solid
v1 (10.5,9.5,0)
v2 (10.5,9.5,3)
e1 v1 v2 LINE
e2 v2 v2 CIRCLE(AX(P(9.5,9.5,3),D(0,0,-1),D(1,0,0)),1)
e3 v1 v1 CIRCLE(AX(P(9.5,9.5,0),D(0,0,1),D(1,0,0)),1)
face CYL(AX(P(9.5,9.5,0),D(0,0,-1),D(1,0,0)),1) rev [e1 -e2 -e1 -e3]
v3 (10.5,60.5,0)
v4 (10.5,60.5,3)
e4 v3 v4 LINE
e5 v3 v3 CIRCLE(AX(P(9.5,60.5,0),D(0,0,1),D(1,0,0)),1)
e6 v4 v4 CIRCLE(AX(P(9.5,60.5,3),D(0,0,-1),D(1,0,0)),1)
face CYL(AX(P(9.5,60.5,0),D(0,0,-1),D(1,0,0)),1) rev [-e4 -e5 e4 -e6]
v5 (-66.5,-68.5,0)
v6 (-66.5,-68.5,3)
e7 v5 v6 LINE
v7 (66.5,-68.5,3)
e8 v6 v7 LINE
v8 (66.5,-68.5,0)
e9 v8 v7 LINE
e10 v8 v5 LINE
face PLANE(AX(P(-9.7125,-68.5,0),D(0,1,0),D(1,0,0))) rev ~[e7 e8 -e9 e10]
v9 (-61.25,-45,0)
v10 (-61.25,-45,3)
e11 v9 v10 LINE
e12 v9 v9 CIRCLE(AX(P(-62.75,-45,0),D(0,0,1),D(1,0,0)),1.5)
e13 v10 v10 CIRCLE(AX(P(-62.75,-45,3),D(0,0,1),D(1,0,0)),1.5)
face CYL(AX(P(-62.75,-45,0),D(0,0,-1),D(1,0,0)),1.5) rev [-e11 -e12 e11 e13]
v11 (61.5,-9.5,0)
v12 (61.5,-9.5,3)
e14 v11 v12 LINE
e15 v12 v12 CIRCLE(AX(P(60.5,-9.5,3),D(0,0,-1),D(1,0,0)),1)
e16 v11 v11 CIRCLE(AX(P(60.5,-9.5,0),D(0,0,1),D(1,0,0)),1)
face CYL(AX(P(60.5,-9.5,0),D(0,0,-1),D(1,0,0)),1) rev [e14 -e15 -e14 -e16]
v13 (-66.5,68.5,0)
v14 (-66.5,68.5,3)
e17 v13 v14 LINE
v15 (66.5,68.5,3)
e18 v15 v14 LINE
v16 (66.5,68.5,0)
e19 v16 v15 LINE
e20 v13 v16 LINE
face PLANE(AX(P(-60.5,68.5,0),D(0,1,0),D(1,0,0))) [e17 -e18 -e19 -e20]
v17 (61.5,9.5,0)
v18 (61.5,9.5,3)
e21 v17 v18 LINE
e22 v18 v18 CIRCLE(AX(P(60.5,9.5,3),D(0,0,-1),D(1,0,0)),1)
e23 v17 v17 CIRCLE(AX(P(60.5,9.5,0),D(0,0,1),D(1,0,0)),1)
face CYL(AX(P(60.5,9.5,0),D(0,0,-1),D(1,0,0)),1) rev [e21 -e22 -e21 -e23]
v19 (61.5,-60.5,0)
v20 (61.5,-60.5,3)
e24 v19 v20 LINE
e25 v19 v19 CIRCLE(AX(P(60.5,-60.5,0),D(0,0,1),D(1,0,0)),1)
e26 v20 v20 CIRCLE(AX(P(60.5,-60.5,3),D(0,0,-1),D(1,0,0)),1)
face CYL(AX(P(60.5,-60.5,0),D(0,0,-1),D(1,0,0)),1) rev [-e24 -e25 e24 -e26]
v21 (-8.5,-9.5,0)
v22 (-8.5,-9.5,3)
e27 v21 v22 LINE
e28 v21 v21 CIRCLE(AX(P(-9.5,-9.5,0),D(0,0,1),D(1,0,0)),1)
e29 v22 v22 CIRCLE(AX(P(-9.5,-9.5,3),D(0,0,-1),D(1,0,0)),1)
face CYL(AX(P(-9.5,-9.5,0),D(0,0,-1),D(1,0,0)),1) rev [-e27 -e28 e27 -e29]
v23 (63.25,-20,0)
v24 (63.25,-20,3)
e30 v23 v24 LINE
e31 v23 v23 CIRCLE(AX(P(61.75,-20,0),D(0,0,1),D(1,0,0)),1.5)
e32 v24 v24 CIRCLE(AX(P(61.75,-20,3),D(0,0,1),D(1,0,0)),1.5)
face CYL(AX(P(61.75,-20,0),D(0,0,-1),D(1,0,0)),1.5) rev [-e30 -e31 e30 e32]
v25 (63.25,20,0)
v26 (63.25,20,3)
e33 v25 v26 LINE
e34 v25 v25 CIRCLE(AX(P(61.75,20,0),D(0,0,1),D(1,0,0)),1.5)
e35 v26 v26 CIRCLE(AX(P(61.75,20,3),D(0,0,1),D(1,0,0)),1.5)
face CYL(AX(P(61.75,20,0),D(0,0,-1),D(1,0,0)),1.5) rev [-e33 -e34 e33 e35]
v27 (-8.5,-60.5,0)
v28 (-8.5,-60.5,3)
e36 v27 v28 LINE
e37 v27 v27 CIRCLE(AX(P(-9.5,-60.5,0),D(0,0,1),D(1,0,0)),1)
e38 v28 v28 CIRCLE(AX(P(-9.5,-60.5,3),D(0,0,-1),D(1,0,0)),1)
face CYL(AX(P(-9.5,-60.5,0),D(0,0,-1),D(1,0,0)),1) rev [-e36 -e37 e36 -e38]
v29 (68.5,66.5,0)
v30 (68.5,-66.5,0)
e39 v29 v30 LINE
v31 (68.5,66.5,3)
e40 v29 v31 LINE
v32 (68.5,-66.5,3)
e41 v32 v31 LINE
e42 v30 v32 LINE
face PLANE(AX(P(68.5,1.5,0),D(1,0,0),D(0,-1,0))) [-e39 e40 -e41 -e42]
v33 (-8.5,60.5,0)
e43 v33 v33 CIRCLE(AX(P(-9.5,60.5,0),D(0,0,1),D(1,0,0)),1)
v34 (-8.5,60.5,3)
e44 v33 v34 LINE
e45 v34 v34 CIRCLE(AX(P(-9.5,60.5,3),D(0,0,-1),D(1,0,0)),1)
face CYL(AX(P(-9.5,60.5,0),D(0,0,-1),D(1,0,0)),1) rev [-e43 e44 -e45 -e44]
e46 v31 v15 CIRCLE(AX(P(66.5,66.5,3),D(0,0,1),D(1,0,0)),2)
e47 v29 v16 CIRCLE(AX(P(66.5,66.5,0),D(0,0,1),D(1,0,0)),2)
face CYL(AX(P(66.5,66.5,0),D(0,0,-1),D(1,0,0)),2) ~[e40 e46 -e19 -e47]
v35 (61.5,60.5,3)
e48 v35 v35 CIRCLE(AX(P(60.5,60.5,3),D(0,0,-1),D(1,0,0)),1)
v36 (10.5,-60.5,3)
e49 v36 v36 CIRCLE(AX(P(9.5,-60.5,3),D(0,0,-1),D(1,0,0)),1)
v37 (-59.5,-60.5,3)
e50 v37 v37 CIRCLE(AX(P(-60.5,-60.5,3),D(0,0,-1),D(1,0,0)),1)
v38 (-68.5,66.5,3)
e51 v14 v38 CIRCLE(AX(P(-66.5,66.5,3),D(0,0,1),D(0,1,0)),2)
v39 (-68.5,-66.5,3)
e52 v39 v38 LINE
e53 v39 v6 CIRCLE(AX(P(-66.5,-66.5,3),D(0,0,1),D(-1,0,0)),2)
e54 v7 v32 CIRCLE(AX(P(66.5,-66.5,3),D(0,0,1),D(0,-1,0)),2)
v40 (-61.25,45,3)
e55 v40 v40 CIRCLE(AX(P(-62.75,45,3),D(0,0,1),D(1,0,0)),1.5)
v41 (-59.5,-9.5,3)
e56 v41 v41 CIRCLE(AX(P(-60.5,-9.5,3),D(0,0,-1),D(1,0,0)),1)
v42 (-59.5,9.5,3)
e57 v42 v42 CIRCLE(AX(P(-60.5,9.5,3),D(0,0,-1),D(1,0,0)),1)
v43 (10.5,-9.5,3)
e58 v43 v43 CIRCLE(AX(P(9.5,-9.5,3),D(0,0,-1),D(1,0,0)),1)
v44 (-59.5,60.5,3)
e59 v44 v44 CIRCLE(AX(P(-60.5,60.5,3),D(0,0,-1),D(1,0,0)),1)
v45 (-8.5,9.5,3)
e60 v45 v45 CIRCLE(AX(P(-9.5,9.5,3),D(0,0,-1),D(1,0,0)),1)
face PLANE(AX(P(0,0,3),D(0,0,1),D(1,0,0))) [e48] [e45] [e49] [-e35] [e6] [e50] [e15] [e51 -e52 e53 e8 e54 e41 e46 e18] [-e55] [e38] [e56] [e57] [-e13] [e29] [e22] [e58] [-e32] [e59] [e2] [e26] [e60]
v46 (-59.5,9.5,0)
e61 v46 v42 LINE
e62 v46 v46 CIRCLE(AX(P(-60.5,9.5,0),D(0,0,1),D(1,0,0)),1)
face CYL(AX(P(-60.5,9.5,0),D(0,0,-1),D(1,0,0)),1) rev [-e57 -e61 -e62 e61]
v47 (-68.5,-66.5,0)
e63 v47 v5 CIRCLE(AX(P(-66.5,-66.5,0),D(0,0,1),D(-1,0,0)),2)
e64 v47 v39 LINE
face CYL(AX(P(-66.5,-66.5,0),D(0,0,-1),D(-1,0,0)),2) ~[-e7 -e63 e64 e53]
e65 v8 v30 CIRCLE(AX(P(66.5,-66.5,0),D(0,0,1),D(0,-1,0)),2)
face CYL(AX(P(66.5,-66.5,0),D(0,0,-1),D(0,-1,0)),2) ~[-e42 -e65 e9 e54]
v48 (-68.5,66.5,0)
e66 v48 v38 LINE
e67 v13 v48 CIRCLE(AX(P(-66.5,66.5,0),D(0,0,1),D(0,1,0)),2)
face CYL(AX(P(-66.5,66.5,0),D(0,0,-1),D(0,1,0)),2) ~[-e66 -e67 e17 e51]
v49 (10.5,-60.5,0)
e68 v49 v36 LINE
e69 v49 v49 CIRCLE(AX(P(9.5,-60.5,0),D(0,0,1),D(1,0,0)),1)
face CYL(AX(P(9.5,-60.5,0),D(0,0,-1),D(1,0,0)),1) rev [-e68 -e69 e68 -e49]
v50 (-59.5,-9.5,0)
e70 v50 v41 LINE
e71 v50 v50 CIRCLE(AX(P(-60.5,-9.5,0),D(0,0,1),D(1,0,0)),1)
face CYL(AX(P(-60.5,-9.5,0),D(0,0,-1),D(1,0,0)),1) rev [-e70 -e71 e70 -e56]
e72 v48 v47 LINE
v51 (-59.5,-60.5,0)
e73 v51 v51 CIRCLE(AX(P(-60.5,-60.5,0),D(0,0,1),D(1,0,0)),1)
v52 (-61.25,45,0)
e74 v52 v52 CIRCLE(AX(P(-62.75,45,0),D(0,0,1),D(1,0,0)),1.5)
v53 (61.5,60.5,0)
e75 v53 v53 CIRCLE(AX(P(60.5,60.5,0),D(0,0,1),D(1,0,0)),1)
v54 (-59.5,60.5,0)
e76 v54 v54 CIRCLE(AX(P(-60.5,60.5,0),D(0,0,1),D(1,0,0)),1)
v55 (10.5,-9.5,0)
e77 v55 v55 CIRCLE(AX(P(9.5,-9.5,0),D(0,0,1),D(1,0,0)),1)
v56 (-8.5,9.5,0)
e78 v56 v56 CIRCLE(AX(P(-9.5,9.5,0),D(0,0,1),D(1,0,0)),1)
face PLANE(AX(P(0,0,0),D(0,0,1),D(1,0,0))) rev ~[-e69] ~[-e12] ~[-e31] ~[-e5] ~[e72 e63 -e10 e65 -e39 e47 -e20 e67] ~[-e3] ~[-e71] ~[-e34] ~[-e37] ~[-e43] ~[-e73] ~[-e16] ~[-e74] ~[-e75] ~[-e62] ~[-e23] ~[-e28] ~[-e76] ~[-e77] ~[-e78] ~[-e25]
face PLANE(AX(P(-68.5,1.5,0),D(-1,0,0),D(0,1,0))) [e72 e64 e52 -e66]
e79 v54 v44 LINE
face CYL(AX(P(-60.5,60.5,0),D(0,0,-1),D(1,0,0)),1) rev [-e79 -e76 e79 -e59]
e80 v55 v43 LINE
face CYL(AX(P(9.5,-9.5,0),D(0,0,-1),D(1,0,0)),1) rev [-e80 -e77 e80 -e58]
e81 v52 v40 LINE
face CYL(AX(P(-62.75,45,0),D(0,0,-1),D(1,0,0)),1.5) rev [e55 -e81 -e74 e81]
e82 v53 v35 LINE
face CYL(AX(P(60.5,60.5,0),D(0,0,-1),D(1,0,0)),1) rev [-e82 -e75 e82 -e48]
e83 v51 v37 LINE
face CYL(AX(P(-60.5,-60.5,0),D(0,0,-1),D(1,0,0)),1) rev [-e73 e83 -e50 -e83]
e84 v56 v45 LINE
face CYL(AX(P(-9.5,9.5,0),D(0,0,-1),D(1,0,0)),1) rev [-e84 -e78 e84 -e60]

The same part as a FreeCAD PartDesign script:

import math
import FreeCAD as App
import Part
import Sketcher
Q = App.Units.Quantity

doc = App.newDocument("Part")
body = doc.addObject("PartDesign::Body", "Body")

sketch1 = body.newObject("Sketcher::SketchObject", "Sketch")
sketch1.AttachmentSupport = (doc.getObject("XY_Plane"), [""])
sketch1.MapMode = "FlatFace"
sketch1.addGeometry(Part.ArcOfCircle(Part.Circle(App.Vector(-66.5, -66.5, 0), App.Vector(0, 0, 1), 2), math.radians(180), math.radians(270)), False)
sketch1.addGeometry(Part.LineSegment(App.Vector(-66.5, -68.5, 0), App.Vector(66.5, -68.5, 0)), False)
sketch1.addGeometry(Part.ArcOfCircle(Part.Circle(App.Vector(66.5, -66.5, 0), App.Vector(0, 0, 1), 2), math.radians(-90), math.radians(0)), False)
sketch1.addGeometry(Part.LineSegment(App.Vector(68.5, -66.5, 0), App.Vector(68.5, 66.5, 0)), False)
sketch1.addGeometry(Part.ArcOfCircle(Part.Circle(App.Vector(66.5, 66.5, 0), App.Vector(0, 0, 1), 2), math.radians(0), math.radians(90)), False)
sketch1.addGeometry(Part.LineSegment(App.Vector(66.5, 68.5, 0), App.Vector(-66.5, 68.5, 0)), False)
sketch1.addGeometry(Part.ArcOfCircle(Part.Circle(App.Vector(-66.5, 66.5, 0), App.Vector(0, 0, 1), 2), math.radians(90), math.radians(180)), False)
sketch1.addGeometry(Part.LineSegment(App.Vector(-68.5, 66.5, 0), App.Vector(-68.5, -66.5, 0)), False)
sketch1.addGeometry(Part.Circle(App.Vector(-60.5, 9.5, 0), App.Vector(0, 0, 1), 1), False)
sketch1.addGeometry(Part.Circle(App.Vector(-62.8, 45, 0), App.Vector(0, 0, 1), 1.5), False)
sketch1.addGeometry(Part.Circle(App.Vector(-60.5, 60.5, 0), App.Vector(0, 0, 1), 1), False)
sketch1.addGeometry(Part.Circle(App.Vector(-9.5, 60.5, 0), App.Vector(0, 0, 1), 1), False)
sketch1.addGeometry(Part.Circle(App.Vector(-9.5, 9.5, 0), App.Vector(0, 0, 1), 1), False)
sketch1.addGeometry(Part.Circle(App.Vector(-60.5, -9.5, 0), App.Vector(0, 0, 1), 1), False)
sketch1.addGeometry(Part.Circle(App.Vector(-9.5, -9.5, 0), App.Vector(0, 0, 1), 1), False)
sketch1.addGeometry(Part.Circle(App.Vector(-62.8, -45, 0), App.Vector(0, 0, 1), 1.5), False)
sketch1.addGeometry(Part.Circle(App.Vector(-9.5, -60.5, 0), App.Vector(0, 0, 1), 1), False)
sketch1.addGeometry(Part.Circle(App.Vector(-60.5, -60.5, 0), App.Vector(0, 0, 1), 1), False)
sketch1.addGeometry(Part.Circle(App.Vector(9.5, 9.5, 0), App.Vector(0, 0, 1), 1), False)
sketch1.addGeometry(Part.Circle(App.Vector(60.5, 9.5, 0), App.Vector(0, 0, 1), 1), False)
sketch1.addGeometry(Part.Circle(App.Vector(61.8, 20, 0), App.Vector(0, 0, 1), 1.5), False)
sketch1.addGeometry(Part.Circle(App.Vector(9.5, 60.5, 0), App.Vector(0, 0, 1), 1), False)
sketch1.addGeometry(Part.Circle(App.Vector(60.5, 60.5, 0), App.Vector(0, 0, 1), 1), False)
sketch1.addGeometry(Part.Circle(App.Vector(9.5, -9.5, 0), App.Vector(0, 0, 1), 1), False)
sketch1.addGeometry(Part.Circle(App.Vector(60.5, -9.5, 0), App.Vector(0, 0, 1), 1), False)
sketch1.addGeometry(Part.Circle(App.Vector(60.5, -60.5, 0), App.Vector(0, 0, 1), 1), False)
sketch1.addGeometry(Part.Circle(App.Vector(9.5, -60.5, 0), App.Vector(0, 0, 1), 1), False)
sketch1.addGeometry(Part.Circle(App.Vector(61.8, -20, 0), App.Vector(0, 0, 1), 1.5), False)
sketch1.addConstraint(Sketcher.Constraint("Tangent", 0, 2, 1, 1))
sketch1.addConstraint(Sketcher.Constraint("Tangent", 1, 2, 2, 1))
sketch1.addConstraint(Sketcher.Constraint("Tangent", 2, 2, 3, 1))
sketch1.addConstraint(Sketcher.Constraint("Tangent", 3, 2, 4, 1))
sketch1.addConstraint(Sketcher.Constraint("Tangent", 4, 2, 5, 1))
sketch1.addConstraint(Sketcher.Constraint("Tangent", 5, 2, 6, 1))
sketch1.addConstraint(Sketcher.Constraint("Tangent", 6, 2, 7, 1))
sketch1.addConstraint(Sketcher.Constraint("Tangent", 7, 2, 0, 1))
sketch1.addConstraint(Sketcher.Constraint("Horizontal", 1))
sketch1.addConstraint(Sketcher.Constraint("Vertical", 3))
sketch1.addConstraint(Sketcher.Constraint("Horizontal", 5))
sketch1.addConstraint(Sketcher.Constraint("Vertical", 7))
sketch1.addConstraint(Sketcher.Constraint("Equal", 0, 2))
sketch1.addConstraint(Sketcher.Constraint("Equal", 2, 4))
sketch1.addConstraint(Sketcher.Constraint("Equal", 4, 6))
sketch1.addConstraint(Sketcher.Constraint("Equal", 8, 10))
sketch1.addConstraint(Sketcher.Constraint("Equal", 10, 11))
sketch1.addConstraint(Sketcher.Constraint("Equal", 11, 12))
sketch1.addConstraint(Sketcher.Constraint("Equal", 12, 13))
sketch1.addConstraint(Sketcher.Constraint("Equal", 13, 14))
sketch1.addConstraint(Sketcher.Constraint("Equal", 9, 15))
sketch1.addConstraint(Sketcher.Constraint("Equal", 14, 16))
sketch1.addConstraint(Sketcher.Constraint("Equal", 16, 17))
sketch1.addConstraint(Sketcher.Constraint("Equal", 17, 18))
sketch1.addConstraint(Sketcher.Constraint("Equal", 18, 19))
sketch1.addConstraint(Sketcher.Constraint("Equal", 15, 20))
sketch1.addConstraint(Sketcher.Constraint("Equal", 19, 21))
sketch1.addConstraint(Sketcher.Constraint("Equal", 21, 22))
sketch1.addConstraint(Sketcher.Constraint("Equal", 22, 23))
sketch1.addConstraint(Sketcher.Constraint("Equal", 23, 24))
sketch1.addConstraint(Sketcher.Constraint("Equal", 24, 25))
sketch1.addConstraint(Sketcher.Constraint("Equal", 25, 26))
sketch1.addConstraint(Sketcher.Constraint("Equal", 20, 27))
sketch1.addConstraint(Sketcher.Constraint("Symmetric", 0, 3, 4, 3, -1, 1))
sketch1.addConstraint(Sketcher.Constraint("Symmetric", 14, 3, 18, 3, -1, 1))
sketch1.addConstraint(Sketcher.Constraint("Symmetric", 13, 3, 19, 3, -1, 1))
sketch1.addConstraint(Sketcher.Constraint("Symmetric", 16, 3, 21, 3, -1, 1))
sketch1.addConstraint(Sketcher.Constraint("Symmetric", 17, 3, 22, 3, -1, 1))
sketch1.addConstraint(Sketcher.Constraint("Symmetric", 12, 3, 23, 3, -1, 1))
sketch1.addConstraint(Sketcher.Constraint("Symmetric", 8, 3, 24, 3, -1, 1))
sketch1.addConstraint(Sketcher.Constraint("Symmetric", 10, 3, 25, 3, -1, 1))
sketch1.addConstraint(Sketcher.Constraint("Symmetric", 11, 3, 26, 3, -1, 1))
sketch1.addConstraint(Sketcher.Constraint("Symmetric", 12, 3, 18, 3, -2))
sketch1.addConstraint(Sketcher.Constraint("Symmetric", 8, 3, 19, 3, -2))
sketch1.addConstraint(Sketcher.Constraint("Symmetric", 11, 3, 21, 3, -2))
sketch1.addConstraint(Sketcher.Constraint("Symmetric", 10, 3, 22, 3, -2))
sketch1.addConstraint(Sketcher.Constraint("Symmetric", 9, 3, 15, 3, -1))
sketch1.addConstraint(Sketcher.Constraint("Symmetric", 20, 3, 27, 3, -1))
sketch1.addConstraint(Sketcher.Constraint("Horizontal", 10, 3, 11, 3))
sketch1.addConstraint(Sketcher.Constraint("Horizontal", 8, 3, 12, 3))
sketch1.addConstraint(Sketcher.Constraint("Vertical", 8, 3, 10, 3))
sketch1.addConstraint(Sketcher.Constraint("Vertical", 11, 3, 12, 3))
sketch1.addConstraint(Sketcher.Constraint("Equal", 5, 3))
sketch1.addConstraint(Sketcher.Constraint("Diameter", 8, Q("2 mm")))
sketch1.addConstraint(Sketcher.Constraint("Diameter", 9, Q("3 mm")))
sketch1.addConstraint(Sketcher.Constraint("Radius", 0, Q("2 mm")))
sketch1.addConstraint(Sketcher.Constraint("DistanceY", 0, 2, 17, 3, Q("8 mm")))
sketch1.addConstraint(Sketcher.Constraint("DistanceX", 25, 3, 2, 2, Q("8 mm")))
sketch1.addConstraint(Sketcher.Constraint("DistanceX", 1, 1, 1, 2, Q("133 mm")))
sketch1.addConstraint(Sketcher.Constraint("DistanceY", -1, 1, 9, 3, Q("45 mm")))
sketch1.addConstraint(Sketcher.Constraint("DistanceY", -1, 1, 20, 3, Q("20 mm")))
sketch1.addConstraint(Sketcher.Constraint("DistanceY", 8, 3, 6, 3, Q("57 mm")))
sketch1.addConstraint(Sketcher.Constraint("DistanceX", 10, 3, 11, 3, Q("51 mm")))
sketch1.addConstraint(Sketcher.Constraint("DistanceX", 9, 3, -1, 1, Q("62.75 mm")))
sketch1.addConstraint(Sketcher.Constraint("DistanceX", -1, 1, 20, 3, Q("61.75 mm")))
pad1 = body.newObject("PartDesign::Pad", "Pad")
pad1.Profile = sketch1
pad1.Length = 3

doc.recompute()
